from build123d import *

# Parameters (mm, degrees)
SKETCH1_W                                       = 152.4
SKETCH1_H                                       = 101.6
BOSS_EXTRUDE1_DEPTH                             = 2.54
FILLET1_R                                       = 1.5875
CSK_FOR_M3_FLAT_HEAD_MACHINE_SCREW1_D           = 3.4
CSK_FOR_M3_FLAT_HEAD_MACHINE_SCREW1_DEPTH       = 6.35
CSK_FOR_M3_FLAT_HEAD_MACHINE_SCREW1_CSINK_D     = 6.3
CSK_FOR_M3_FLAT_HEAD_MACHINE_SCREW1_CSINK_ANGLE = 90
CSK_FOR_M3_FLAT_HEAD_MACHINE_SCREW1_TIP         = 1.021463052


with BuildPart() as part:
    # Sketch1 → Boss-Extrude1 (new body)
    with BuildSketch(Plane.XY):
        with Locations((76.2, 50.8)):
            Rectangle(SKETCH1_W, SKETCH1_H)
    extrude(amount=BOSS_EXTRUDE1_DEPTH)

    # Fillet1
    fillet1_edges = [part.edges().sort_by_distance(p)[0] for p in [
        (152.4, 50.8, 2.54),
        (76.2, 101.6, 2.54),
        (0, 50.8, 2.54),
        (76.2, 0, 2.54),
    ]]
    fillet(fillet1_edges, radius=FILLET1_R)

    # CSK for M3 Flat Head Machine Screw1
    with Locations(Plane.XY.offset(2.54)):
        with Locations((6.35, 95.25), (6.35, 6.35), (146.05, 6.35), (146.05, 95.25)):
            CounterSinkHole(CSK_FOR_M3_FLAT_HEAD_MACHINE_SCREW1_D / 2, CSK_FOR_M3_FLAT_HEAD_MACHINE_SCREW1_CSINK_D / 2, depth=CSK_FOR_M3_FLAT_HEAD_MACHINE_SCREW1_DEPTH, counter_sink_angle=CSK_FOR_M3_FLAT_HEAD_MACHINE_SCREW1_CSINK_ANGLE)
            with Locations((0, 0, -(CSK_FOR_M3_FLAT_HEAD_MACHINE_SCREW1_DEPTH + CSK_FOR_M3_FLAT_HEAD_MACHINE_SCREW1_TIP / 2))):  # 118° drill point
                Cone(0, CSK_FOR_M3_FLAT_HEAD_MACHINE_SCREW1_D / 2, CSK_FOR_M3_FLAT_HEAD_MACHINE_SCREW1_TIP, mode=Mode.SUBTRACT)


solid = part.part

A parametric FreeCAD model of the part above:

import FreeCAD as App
import Part
import Sketcher
from FreeCAD import Vector
Q = App.Units.Quantity


def edges_at(feature, points):
    """Names of the edges that pass closest to the given points."""
    edges = feature.Shape.Edges
    near = lambda p: min(range(len(edges)), key=lambda i: edges[i].distToShape(Part.Vertex(*p))[0])
    return sorted({f"Edge{near(p) + 1}" for p in points})


def add_polygon(sketch, points):
    """Adds a closed chain of lines whose ends are joined by coincident constraints."""
    first, n = sketch.GeometryCount, len(points)
    for a, b in zip(points, points[1:] + points[:1]):
        sketch.addGeometry(Part.LineSegment(App.Vector(*a, 0), App.Vector(*b, 0)), False)
    for i in range(n):
        sketch.addConstraint(Sketcher.Constraint("Coincident", first + i, 2, first + (i + 1) % n, 1))

doc = App.newDocument("Part")
body = doc.addObject("PartDesign::Body", "Body")

# Sketch on XY plane
sketch1 = body.newObject("Sketcher::SketchObject", "Sketch")
sketch1.AttachmentSupport = (doc.getObject("XY_Plane"), [""])
sketch1.MapMode = "FlatFace"
add_polygon(sketch1, [(0, 102), (0, 0), (152, 0), (152, 102)])  # lines 0-3
sketch1.addConstraint(Sketcher.Constraint("Vertical", 0))
sketch1.addConstraint(Sketcher.Constraint("Horizontal", 1))
sketch1.addConstraint(Sketcher.Constraint("Vertical", 2))
sketch1.addConstraint(Sketcher.Constraint("Horizontal", 3))
sketch1.addConstraint(Sketcher.Constraint("Coincident", 0, 2, -1, 1))
sketch1.addConstraint(Sketcher.Constraint("DistanceX", 1, 1, 1, 2, Q("6 in")))
sketch1.addConstraint(Sketcher.Constraint("DistanceY", 0, 2, 0, 1, Q("4 in")))
pad1 = body.newObject("PartDesign::Pad", "Pad")
pad1.Profile = sketch1
pad1.Length = Q("0.1 in")
doc.recompute()

fillet = body.newObject("PartDesign::Fillet", "Fillet")
fillet.Base = (pad1, edges_at(pad1, [
    (152.4, 50.8, 2.54),
    (76.2, 101.6, 2.54),
    (0, 50.8, 2.54),
    (76.2, 0, 2.54),
]))
fillet.Radius = Q("0.0625 in")

# Sketch on XY plane
sketch2 = body.newObject("Sketcher::SketchObject", "Sketch001")
sketch2.AttachmentSupport = (doc.getObject("XY_Plane"), [""])
sketch2.MapMode = "FlatFace"
sketch2.AttachmentOffset = App.Placement(Vector(0, 0, 0.1 * 25.4), App.Rotation())
sketch2.addGeometry(Part.Circle(Vector(6.3, 95.2, 0), Vector(0, 0, 1), 1.7), False)
sketch2.addGeometry(Part.Circle(Vector(6.3, 6.3, 0), Vector(0, 0, 1), 1.7), False)
sketch2.addGeometry(Part.Circle(Vector(146.1, 6.3, 0), Vector(0, 0, 1), 1.7), False)
sketch2.addGeometry(Part.Circle(Vector(146.1, 95.2, 0), Vector(0, 0, 1), 1.7), False)
sketch2.addConstraint(Sketcher.Constraint("Equal", 0, 1))
sketch2.addConstraint(Sketcher.Constraint("Equal", 1, 2))
sketch2.addConstraint(Sketcher.Constraint("Equal", 2, 3))
sketch2.addConstraint(Sketcher.Constraint("Horizontal", 1, 3, 2, 3))
sketch2.addConstraint(Sketcher.Constraint("Horizontal", 0, 3, 3, 3))
sketch2.addConstraint(Sketcher.Constraint("Vertical", 0, 3, 1, 3))
sketch2.addConstraint(Sketcher.Constraint("Vertical", 2, 3, 3, 3))
sketch2.addConstraint(Sketcher.Constraint("DistanceY", 1, 3, 0, 3, Q("3.5 in")))
sketch2.addConstraint(Sketcher.Constraint("DistanceX", 1, 3, 2, 3, Q("5.5 in")))
sketch2.addConstraint(Sketcher.Constraint("Diameter", 0, Q("3.4 mm")))
sketch2.addConstraint(Sketcher.Constraint("DistanceX", -1, 1, 0, 3, Q("0.25 in")))
sketch2.addConstraint(Sketcher.Constraint("DistanceY", -1, 1, 0, 3, Q("3.75 in")))
doc.recompute()
hole = body.newObject("PartDesign::Hole", "Hole")
hole.Profile = sketch2
hole.ThreadType = "None"
hole.Diameter = 3.4
hole.DepthType = "Dimension"
hole.Depth = Q("0.25 in")
hole.DrillPoint = "Angled"
hole.DrillPointAngle = 118
hole.HoleCutType = "Countersink"
hole.HoleCutDiameter = 6.3
hole.HoleCutCountersinkAngle = 90

doc.recompute()
